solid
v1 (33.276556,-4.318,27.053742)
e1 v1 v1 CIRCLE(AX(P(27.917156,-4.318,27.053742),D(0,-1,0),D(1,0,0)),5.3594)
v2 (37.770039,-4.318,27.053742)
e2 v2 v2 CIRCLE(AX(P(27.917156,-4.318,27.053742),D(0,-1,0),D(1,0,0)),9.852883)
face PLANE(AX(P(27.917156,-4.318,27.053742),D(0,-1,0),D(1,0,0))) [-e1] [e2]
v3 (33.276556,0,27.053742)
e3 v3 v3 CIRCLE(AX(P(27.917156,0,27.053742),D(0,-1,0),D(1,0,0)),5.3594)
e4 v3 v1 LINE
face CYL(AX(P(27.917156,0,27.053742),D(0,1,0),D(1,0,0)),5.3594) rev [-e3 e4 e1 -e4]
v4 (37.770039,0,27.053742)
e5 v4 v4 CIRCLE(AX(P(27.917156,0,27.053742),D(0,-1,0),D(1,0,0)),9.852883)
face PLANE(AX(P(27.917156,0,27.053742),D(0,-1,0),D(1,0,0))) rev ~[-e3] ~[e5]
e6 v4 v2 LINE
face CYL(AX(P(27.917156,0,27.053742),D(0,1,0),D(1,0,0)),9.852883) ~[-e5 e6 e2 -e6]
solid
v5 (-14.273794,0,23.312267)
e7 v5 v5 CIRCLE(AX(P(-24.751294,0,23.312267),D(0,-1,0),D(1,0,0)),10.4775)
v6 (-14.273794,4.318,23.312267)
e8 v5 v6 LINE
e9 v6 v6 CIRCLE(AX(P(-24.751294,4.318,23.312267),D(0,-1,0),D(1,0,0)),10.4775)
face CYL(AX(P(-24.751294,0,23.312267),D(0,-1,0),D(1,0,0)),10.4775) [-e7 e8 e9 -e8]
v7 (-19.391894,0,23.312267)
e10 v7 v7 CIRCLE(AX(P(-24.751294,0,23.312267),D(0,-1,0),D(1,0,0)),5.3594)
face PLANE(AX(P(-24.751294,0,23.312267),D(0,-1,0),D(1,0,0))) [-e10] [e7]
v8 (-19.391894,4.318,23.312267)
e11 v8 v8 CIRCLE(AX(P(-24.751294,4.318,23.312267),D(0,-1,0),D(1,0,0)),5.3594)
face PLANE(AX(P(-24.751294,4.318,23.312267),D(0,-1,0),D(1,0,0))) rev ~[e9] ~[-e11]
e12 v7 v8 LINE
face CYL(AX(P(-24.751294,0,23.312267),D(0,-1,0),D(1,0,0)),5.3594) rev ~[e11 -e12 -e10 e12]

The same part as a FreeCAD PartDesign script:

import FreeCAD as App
import Part
import Sketcher

V = App.Vector
Q = App.Units.Quantity

doc = App.newDocument("Part")
body = doc.addObject("PartDesign::Body", "Body")

# Sketch on XZ plane
sketch1 = doc.addObject("Sketcher::SketchObject", "Sketch")
body.addObject(sketch1)
sketch1.AttachmentSupport = (doc.XZ_Plane, [""])
sketch1.MapMode = "FlatFace"
sketch1.addGeometry([
    Part.Circle(V(-25, 23, 0), V(0, 0, 1), 10),
    Part.Circle(V(-25, 23, 0), V(0, 0, 1), 5),
], False)
sketch1.addConstraint([
    Sketcher.Constraint("Coincident", 1, 3, 0, 3),
    Sketcher.Constraint("Diameter", 0, Q("0.825 in")),
    Sketcher.Constraint("Diameter", 1, Q("0.422 in")),
    Sketcher.Constraint("DistanceX", 0, 3, -1, 1, 24.751294),
    Sketcher.Constraint("DistanceY", -1, 1, 0, 3, 23.312267),
])
pad1 = doc.addObject("PartDesign::Pad", "Pad")
body.addObject(pad1)
pad1.Profile = sketch1
pad1.Length = Q("0.17 in")
pad1.Reversed = True
body2 = doc.addObject("PartDesign::Body", "Body001")

# Sketch on XZ plane
sketch2 = doc.addObject("Sketcher::SketchObject", "Sketch001")
body2.addObject(sketch2)
sketch2.AttachmentSupport = (doc.getObject("XZ_Plane001"), [""])
sketch2.MapMode = "FlatFace"
sketch2.addGeometry([
    Part.Circle(V(28, 27, 0), V(0, 0, 1), 10),
    Part.Circle(V(28, 27, 0), V(0, 0, 1), 5),
], False)
sketch2.addConstraint([
    Sketcher.Constraint("Coincident", 1, 3, 0, 3),
    Sketcher.Constraint("Diameter", 1, Q("0.422 in")),
    Sketcher.Constraint("Diameter", 0, 19.705766),
    Sketcher.Constraint("DistanceY", -1, 1, 0, 3, 27.053742),
    Sketcher.Constraint("DistanceX", -1, 1, 0, 3, 27.917156),
])
pad2 = doc.addObject("PartDesign::Pad", "Pad001")
body2.addObject(pad2)
pad2.Profile = sketch2
pad2.Length = Q("0.17 in")

doc.recompute()
